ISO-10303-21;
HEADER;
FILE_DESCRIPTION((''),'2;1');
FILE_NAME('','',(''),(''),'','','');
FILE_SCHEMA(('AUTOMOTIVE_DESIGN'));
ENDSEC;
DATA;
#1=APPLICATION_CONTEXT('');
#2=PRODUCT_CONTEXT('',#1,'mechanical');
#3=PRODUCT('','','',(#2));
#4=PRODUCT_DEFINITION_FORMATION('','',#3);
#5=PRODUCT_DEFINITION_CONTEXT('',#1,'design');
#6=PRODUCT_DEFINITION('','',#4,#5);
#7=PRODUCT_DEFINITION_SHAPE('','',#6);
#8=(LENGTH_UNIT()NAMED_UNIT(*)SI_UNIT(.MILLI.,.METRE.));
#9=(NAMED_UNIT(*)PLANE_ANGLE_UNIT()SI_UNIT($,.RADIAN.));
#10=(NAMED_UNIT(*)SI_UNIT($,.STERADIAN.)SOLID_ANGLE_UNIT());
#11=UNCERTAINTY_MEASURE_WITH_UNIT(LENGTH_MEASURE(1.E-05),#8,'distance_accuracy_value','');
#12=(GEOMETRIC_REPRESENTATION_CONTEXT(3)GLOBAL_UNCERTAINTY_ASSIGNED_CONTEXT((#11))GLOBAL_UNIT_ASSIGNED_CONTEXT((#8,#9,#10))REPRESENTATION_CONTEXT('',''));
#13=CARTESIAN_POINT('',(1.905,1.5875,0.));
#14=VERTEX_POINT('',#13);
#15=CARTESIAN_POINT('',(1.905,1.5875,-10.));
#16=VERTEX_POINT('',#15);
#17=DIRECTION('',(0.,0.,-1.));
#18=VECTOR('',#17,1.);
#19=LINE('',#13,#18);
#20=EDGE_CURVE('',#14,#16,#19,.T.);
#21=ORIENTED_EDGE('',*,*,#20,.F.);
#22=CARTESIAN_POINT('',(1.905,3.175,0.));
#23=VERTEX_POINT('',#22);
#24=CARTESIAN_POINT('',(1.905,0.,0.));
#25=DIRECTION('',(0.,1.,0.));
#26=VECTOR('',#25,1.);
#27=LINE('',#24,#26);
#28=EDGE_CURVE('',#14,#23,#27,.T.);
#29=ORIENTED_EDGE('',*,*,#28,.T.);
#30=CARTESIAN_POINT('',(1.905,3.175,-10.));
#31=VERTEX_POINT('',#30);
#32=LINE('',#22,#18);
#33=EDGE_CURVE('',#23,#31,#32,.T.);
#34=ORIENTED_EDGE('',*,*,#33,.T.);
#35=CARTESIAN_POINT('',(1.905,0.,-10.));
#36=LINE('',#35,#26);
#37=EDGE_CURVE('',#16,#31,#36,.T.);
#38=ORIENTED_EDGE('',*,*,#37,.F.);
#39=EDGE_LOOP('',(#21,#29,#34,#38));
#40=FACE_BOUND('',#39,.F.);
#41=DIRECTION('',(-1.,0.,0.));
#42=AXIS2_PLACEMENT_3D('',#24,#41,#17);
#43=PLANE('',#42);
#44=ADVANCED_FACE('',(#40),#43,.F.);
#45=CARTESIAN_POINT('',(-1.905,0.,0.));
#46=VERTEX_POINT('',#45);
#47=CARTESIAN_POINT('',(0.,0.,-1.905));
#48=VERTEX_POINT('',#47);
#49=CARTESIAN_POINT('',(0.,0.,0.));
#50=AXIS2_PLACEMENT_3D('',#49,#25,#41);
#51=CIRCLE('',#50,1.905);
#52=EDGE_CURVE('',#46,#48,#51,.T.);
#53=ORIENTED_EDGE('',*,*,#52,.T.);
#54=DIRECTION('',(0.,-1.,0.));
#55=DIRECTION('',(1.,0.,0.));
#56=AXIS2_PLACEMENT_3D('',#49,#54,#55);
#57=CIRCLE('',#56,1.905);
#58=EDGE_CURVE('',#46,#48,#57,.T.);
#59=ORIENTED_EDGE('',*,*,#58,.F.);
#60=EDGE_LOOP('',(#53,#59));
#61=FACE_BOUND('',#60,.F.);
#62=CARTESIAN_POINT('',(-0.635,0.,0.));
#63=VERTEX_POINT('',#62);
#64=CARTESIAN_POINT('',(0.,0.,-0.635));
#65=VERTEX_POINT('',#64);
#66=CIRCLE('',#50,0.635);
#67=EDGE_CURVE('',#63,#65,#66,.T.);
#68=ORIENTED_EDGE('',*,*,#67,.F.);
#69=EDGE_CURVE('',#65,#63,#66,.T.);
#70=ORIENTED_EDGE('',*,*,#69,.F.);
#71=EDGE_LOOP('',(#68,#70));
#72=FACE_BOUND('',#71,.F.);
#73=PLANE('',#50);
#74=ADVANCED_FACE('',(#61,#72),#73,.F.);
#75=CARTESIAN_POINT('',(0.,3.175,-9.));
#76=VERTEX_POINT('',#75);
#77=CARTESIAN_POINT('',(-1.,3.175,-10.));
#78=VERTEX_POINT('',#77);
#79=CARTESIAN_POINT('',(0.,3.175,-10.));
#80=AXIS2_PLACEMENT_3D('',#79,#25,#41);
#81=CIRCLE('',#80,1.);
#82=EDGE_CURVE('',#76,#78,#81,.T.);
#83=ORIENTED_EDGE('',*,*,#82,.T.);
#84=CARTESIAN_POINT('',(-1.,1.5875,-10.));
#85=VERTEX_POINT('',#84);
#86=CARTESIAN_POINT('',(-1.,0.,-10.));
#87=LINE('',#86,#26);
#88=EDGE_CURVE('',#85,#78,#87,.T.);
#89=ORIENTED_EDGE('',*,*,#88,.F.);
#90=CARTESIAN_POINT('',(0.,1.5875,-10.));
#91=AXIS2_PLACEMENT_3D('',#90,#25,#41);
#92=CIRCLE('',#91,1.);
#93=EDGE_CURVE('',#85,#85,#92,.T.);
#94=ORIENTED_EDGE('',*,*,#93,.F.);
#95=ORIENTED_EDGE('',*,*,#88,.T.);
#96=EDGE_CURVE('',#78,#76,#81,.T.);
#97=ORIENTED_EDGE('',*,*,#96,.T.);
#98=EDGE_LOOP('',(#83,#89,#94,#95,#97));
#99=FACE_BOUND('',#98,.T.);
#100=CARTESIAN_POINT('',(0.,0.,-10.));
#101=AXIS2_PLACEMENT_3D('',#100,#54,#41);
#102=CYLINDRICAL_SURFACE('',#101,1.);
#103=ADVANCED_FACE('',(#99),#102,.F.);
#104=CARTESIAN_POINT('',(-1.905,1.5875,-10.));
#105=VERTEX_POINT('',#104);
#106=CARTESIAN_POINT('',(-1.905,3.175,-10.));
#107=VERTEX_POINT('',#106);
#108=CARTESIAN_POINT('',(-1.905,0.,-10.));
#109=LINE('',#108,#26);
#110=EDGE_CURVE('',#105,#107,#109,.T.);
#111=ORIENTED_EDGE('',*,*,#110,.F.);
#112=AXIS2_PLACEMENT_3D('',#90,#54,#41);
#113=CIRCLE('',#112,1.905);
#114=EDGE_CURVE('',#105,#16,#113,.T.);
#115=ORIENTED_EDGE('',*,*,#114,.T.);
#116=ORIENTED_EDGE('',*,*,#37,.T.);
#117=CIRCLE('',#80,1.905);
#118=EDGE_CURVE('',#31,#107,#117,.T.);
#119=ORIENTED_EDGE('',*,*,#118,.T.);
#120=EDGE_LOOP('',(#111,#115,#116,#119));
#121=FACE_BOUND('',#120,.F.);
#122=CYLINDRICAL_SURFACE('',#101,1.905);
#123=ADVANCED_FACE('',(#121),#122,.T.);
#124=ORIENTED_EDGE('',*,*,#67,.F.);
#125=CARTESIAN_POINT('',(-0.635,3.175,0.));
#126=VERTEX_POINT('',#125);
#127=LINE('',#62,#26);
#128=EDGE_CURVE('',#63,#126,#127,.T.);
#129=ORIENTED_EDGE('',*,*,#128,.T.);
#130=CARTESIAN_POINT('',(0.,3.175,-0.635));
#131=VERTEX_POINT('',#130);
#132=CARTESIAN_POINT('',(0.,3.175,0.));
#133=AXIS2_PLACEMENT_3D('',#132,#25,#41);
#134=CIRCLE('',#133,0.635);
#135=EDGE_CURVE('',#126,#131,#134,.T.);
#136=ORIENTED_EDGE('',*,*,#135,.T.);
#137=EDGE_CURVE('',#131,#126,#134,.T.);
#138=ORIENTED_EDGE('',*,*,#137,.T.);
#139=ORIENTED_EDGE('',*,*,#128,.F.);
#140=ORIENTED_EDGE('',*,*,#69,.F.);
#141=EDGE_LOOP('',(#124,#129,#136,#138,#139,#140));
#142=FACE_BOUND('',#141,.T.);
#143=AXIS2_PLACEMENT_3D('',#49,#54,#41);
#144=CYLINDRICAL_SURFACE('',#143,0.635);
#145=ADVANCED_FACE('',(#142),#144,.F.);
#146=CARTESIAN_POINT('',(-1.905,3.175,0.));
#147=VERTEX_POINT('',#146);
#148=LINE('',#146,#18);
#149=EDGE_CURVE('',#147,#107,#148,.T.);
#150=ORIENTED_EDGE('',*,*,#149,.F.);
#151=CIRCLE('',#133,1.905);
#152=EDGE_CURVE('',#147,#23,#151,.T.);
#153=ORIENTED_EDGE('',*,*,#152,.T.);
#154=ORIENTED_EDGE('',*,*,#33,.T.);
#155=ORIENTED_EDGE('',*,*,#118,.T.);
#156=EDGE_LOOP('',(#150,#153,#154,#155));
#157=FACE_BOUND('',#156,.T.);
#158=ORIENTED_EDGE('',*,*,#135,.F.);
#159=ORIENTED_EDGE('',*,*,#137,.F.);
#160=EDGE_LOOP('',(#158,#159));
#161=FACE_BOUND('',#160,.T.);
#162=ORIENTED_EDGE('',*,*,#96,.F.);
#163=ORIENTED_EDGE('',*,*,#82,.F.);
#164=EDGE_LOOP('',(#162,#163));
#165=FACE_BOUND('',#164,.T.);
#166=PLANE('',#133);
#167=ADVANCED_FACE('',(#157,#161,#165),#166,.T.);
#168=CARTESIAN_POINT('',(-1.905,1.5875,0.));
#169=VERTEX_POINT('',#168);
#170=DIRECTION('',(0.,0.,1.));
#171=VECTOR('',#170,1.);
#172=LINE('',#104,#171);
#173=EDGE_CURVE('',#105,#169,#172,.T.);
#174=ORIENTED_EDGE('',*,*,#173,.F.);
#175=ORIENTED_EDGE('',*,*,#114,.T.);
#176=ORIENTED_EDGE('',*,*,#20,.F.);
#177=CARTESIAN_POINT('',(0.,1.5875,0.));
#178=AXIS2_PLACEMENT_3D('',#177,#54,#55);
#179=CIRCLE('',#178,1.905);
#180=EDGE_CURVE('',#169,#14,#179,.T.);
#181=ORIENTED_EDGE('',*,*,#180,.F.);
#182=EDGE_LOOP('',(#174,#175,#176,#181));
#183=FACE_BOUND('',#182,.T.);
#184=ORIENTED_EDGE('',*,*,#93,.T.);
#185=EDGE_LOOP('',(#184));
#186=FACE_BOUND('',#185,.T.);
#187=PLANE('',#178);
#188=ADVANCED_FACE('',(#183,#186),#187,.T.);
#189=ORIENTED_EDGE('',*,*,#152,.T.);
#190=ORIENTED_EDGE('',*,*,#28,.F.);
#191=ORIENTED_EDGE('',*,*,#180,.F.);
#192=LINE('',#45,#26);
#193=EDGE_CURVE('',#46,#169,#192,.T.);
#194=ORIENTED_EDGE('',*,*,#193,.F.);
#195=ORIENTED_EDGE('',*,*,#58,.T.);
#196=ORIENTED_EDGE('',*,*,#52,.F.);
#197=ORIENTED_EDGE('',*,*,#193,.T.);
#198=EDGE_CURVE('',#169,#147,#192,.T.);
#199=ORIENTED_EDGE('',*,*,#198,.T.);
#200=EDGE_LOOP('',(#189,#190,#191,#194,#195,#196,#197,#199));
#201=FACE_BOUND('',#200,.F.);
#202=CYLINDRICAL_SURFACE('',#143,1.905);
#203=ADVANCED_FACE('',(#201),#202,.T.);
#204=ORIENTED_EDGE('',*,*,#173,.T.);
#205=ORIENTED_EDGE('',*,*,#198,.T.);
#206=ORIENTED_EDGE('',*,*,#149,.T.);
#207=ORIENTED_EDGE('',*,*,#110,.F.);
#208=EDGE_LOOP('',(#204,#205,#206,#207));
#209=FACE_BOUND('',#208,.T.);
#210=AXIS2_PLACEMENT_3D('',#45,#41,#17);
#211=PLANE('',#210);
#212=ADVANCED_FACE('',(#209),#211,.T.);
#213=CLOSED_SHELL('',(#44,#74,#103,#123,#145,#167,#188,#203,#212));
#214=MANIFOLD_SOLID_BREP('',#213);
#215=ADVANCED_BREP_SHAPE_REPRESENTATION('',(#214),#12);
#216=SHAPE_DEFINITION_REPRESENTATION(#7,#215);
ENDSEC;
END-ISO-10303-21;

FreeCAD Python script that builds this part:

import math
import FreeCAD as App
import Part
import Sketcher

V = App.Vector
Q = App.Units.Quantity

doc = App.newDocument("Part")
body = doc.addObject("PartDesign::Body", "Body")

sketch1 = body.newObject("Sketcher::SketchObject", "Sketch")
sketch1.AttachmentSupport = (doc.getObject("XZ_Plane"), [""])
sketch1.MapMode = "FlatFace"
sketch1.addGeometry(Part.ArcOfCircle(Part.Circle(V(0, 0, 0), V(0, 0, 1), 1.905), math.radians(0), math.radians(180)), False)
sketch1.addGeometry(Part.LineSegment(V(1.905, 0, 0), V(1.905, -10, 0)), False)
sketch1.addGeometry(Part.ArcOfCircle(Part.Circle(V(0, -10, 0), V(0, 0, 1), 1.905), math.radians(180), math.radians(360)), False)
sketch1.addGeometry(Part.LineSegment(V(-1.905, -10, 0), V(-1.905, 0, 0)), False)
sketch1.addGeometry(Part.Circle(V(0, 0, 0), V(0, 0, 1), 0.635), False)
sketch1.addGeometry(Part.Circle(V(0, -10, 0), V(0, 0, 1), 1), False)
sketch1.addConstraint(Sketcher.Constraint("Tangent", 0, 1, 1, 1))
sketch1.addConstraint(Sketcher.Constraint("Tangent", 1, 2, 2, 2))
sketch1.addConstraint(Sketcher.Constraint("Tangent", 2, 1, 3, 1))
sketch1.addConstraint(Sketcher.Constraint("Tangent", 3, 2, 0, 2))
sketch1.addConstraint(Sketcher.Constraint("Vertical", 1))
sketch1.addConstraint(Sketcher.Constraint("Vertical", 3))
sketch1.addConstraint(Sketcher.Constraint("Coincident", 0, 3, -1, 1))
sketch1.addConstraint(Sketcher.Constraint("Coincident", 4, 3, -1, 1))
sketch1.addConstraint(Sketcher.Constraint("Coincident", 5, 3, 2, 3))
sketch1.addConstraint(Sketcher.Constraint("Diameter", 4, Q("0.05 in")))
sketch1.addConstraint(Sketcher.Constraint("Radius", 0, Q("0.075 in")))
sketch1.addConstraint(Sketcher.Constraint("Diameter", 5, 2.0))
sketch1.addConstraint(Sketcher.Constraint("DistanceY", 1, 2, 1, 1, Q("0.3937 in")))
pad1 = body.newObject("PartDesign::Pad", "Pad")
pad1.Profile = sketch1
pad1.Length = Q("0.125 in")
pad1.Reversed = True

sketch2 = body.newObject("Sketcher::SketchObject", "Sketch001")
sketch2.AttachmentSupport = (doc.getObject("XZ_Plane"), [""])
sketch2.MapMode = "FlatFace"
sketch2.addGeometry(Part.LineSegment(V(1.905, -10, 0), V(1.905, 0, 0)), False)
sketch2.addGeometry(Part.ArcOfCircle(Part.Circle(V(0, 0, 0), V(0, 0, 1), 1.905), math.radians(180), math.radians(360)), False)
sketch2.addGeometry(Part.LineSegment(V(-1.905, 0, 0), V(-1.905, -10, 0)), False)
sketch2.addGeometry(Part.ArcOfCircle(Part.Circle(V(0, -10, 0), V(0, 0, 1), 1.905), math.radians(180), math.radians(360)), False)
sketch2.addGeometry(Part.Circle(V(0, -10, 0), V(0, 0, 1), 1), False)
sketch2.addConstraint(Sketcher.Constraint("Tangent", 0, 2, 1, 2))
sketch2.addConstraint(Sketcher.Constraint("Tangent", 1, 1, 2, 1))
sketch2.addConstraint(Sketcher.Constraint("Tangent", 2, 2, 3, 1))
sketch2.addConstraint(Sketcher.Constraint("Tangent", 3, 2, 0, 1))
sketch2.addConstraint(Sketcher.Constraint("Vertical", 0))
sketch2.addConstraint(Sketcher.Constraint("Vertical", 2))
sketch2.addConstraint(Sketcher.Constraint("Coincident", 1, 3, -1, 1))
sketch2.addConstraint(Sketcher.Constraint("Coincident", 4, 3, 3, 3))
sketch2.addConstraint(Sketcher.Constraint("Radius", 1, Q("0.075 in")))
sketch2.addConstraint(Sketcher.Constraint("Diameter", 4, 2.0))
sketch2.addConstraint(Sketcher.Constraint("DistanceY", 0, 1, 0, 2, Q("0.3937 in")))
pocket1 = body.newObject("PartDesign::Pocket", "Pocket")
pocket1.Profile = sketch2
pocket1.Length = Q("0.0625 in")

doc.recompute()
